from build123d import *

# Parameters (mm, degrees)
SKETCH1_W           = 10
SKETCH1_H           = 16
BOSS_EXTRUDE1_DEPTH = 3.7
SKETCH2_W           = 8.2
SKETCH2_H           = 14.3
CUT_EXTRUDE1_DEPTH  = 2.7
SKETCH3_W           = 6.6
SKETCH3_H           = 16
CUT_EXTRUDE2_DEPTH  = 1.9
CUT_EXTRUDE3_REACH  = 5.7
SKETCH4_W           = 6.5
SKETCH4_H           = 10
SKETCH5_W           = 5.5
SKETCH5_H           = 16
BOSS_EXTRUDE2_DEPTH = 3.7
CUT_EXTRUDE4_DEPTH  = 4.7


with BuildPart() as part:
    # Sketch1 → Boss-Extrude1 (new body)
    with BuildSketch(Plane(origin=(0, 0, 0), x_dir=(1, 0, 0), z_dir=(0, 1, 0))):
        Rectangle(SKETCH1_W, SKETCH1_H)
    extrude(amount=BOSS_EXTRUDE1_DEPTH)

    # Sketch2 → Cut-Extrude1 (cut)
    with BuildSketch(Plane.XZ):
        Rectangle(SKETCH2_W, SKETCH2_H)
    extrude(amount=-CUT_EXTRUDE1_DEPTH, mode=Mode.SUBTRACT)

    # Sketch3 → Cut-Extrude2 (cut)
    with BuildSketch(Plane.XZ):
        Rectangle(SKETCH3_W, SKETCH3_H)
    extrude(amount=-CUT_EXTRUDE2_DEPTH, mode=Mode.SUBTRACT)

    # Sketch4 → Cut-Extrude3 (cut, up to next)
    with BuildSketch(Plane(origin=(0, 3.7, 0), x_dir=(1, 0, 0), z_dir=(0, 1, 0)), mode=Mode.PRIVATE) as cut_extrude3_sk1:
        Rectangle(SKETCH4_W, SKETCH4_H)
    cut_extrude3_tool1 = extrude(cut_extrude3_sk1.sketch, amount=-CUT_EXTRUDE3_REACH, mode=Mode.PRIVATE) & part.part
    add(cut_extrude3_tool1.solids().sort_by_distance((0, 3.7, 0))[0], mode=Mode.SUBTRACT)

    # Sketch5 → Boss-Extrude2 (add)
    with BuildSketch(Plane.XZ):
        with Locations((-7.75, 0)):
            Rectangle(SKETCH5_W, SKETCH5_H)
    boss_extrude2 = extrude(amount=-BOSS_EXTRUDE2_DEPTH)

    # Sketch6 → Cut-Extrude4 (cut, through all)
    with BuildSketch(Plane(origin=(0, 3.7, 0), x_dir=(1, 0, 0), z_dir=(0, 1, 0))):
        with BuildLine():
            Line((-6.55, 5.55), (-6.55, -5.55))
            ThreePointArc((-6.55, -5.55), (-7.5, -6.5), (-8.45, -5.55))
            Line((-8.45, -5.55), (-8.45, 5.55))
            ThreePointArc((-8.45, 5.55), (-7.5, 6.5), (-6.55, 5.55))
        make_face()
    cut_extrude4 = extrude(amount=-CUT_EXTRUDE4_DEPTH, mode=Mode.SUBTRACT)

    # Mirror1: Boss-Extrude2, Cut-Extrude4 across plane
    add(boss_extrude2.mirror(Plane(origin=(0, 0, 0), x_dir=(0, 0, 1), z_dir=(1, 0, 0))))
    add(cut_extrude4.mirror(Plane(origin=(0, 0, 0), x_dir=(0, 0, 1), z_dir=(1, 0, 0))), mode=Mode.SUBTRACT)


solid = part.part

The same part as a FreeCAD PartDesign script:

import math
import FreeCAD as App
import Part
import Sketcher
from FreeCAD import Vector

doc = App.newDocument("Part")
body = doc.addObject("PartDesign::Body", "Body")

sketch1 = doc.addObject("Sketcher::SketchObject", "Sketch")
body.addObject(sketch1)
sketch1.AttachmentSupport = (doc.XZ_Plane, [""])
sketch1.MapMode = "FlatFace"
sketch1.addGeometry([
    Part.LineSegment(Vector(-5, -8, 0), Vector(-5, 8, 0)),
    Part.LineSegment(Vector(-5, 8, 0), Vector(5, 8, 0)),
    Part.LineSegment(Vector(5, 8, 0), Vector(5, -8, 0)),
    Part.LineSegment(Vector(5, -8, 0), Vector(-5, -8, 0)),
], False)
sketch1.addConstraint([
    Sketcher.Constraint("Coincident", 0, 2, 1, 1),
    Sketcher.Constraint("Coincident", 1, 2, 2, 1),
    Sketcher.Constraint("Coincident", 2, 2, 3, 1),
    Sketcher.Constraint("Coincident", 3, 2, 0, 1),
    Sketcher.Constraint("Vertical", 0),
    Sketcher.Constraint("Horizontal", 1),
    Sketcher.Constraint("Vertical", 2),
    Sketcher.Constraint("Horizontal", 3),
    Sketcher.Constraint("Symmetric", 0, 2, 2, 2, -1, 1),
    Sketcher.Constraint("DistanceX", 1, 1, 1, 2, 10.0),
    Sketcher.Constraint("DistanceY", 0, 1, 0, 2, 16.0),
])
pad1 = doc.addObject("PartDesign::Pad", "Pad")
body.addObject(pad1)
pad1.Profile = sketch1
pad1.Length = 3.7
pad1.Reversed = True

sketch2 = doc.addObject("Sketcher::SketchObject", "Sketch001")
body.addObject(sketch2)
sketch2.AttachmentSupport = (doc.XZ_Plane, [""])
sketch2.MapMode = "FlatFace"
sketch2.addGeometry([
    Part.LineSegment(Vector(-4.1, 7.15, 0), Vector(-4.1, -7.15, 0)),
    Part.LineSegment(Vector(-4.1, -7.15, 0), Vector(4.1, -7.15, 0)),
    Part.LineSegment(Vector(4.1, -7.15, 0), Vector(4.1, 7.15, 0)),
    Part.LineSegment(Vector(4.1, 7.15, 0), Vector(-4.1, 7.15, 0)),
], False)
sketch2.addConstraint([
    Sketcher.Constraint("Coincident", 0, 2, 1, 1),
    Sketcher.Constraint("Coincident", 1, 2, 2, 1),
    Sketcher.Constraint("Coincident", 2, 2, 3, 1),
    Sketcher.Constraint("Coincident", 3, 2, 0, 1),
    Sketcher.Constraint("Vertical", 0),
    Sketcher.Constraint("Horizontal", 1),
    Sketcher.Constraint("Vertical", 2),
    Sketcher.Constraint("Horizontal", 3),
    Sketcher.Constraint("Symmetric", 0, 2, 2, 2, -1, 1),
    Sketcher.Constraint("DistanceX", 1, 1, 1, 2, 8.2),
    Sketcher.Constraint("DistanceY", 0, 2, 0, 1, 14.3),
])
pocket1 = doc.addObject("PartDesign::Pocket", "Pocket")
body.addObject(pocket1)
pocket1.Profile = sketch2
pocket1.Length = 2.7

sketch3 = doc.addObject("Sketcher::SketchObject", "Sketch002")
body.addObject(sketch3)
sketch3.AttachmentSupport = (doc.XZ_Plane, [""])
sketch3.MapMode = "FlatFace"
sketch3.addGeometry([
    Part.LineSegment(Vector(-3.3, 8, 0), Vector(-3.3, -8, 0)),
    Part.LineSegment(Vector(-3.3, -8, 0), Vector(3.3, -8, 0)),
    Part.LineSegment(Vector(3.3, -8, 0), Vector(3.3, 8, 0)),
    Part.LineSegment(Vector(3.3, 8, 0), Vector(-3.3, 8, 0)),
], False)
sketch3.addConstraint([
    Sketcher.Constraint("Coincident", 0, 2, 1, 1),
    Sketcher.Constraint("Coincident", 1, 2, 2, 1),
    Sketcher.Constraint("Coincident", 2, 2, 3, 1),
    Sketcher.Constraint("Coincident", 3, 2, 0, 1),
    Sketcher.Constraint("Vertical", 0),
    Sketcher.Constraint("Horizontal", 1),
    Sketcher.Constraint("Vertical", 2),
    Sketcher.Constraint("Horizontal", 3),
    Sketcher.Constraint("Symmetric", 0, 2, 2, 2, -1, 1),
    Sketcher.Constraint("DistanceY", 0, 2, 0, 1, 16.0),
    Sketcher.Constraint("DistanceX", 1, 1, 1, 2, 6.6),
])
pocket2 = doc.addObject("PartDesign::Pocket", "Pocket001")
body.addObject(pocket2)
pocket2.Profile = sketch3
pocket2.Length = 1.9

sketch4 = doc.addObject("Sketcher::SketchObject", "Sketch003")
body.addObject(sketch4)
sketch4.AttachmentSupport = (doc.XZ_Plane, [""])
sketch4.MapMode = "FlatFace"
sketch4.AttachmentOffset = App.Placement(Vector(0, 0, -3.7), App.Rotation())
sketch4.addGeometry([
    Part.LineSegment(Vector(-3.25, -5, 0), Vector(-3.25, 5, 0)),
    Part.LineSegment(Vector(-3.25, 5, 0), Vector(3.25, 5, 0)),
    Part.LineSegment(Vector(3.25, 5, 0), Vector(3.25, -5, 0)),
    Part.LineSegment(Vector(3.25, -5, 0), Vector(-3.25, -5, 0)),
], False)
sketch4.addConstraint([
    Sketcher.Constraint("Coincident", 0, 2, 1, 1),
    Sketcher.Constraint("Coincident", 1, 2, 2, 1),
    Sketcher.Constraint("Coincident", 2, 2, 3, 1),
    Sketcher.Constraint("Coincident", 3, 2, 0, 1),
    Sketcher.Constraint("Vertical", 0),
    Sketcher.Constraint("Horizontal", 1),
    Sketcher.Constraint("Vertical", 2),
    Sketcher.Constraint("Horizontal", 3),
    Sketcher.Constraint("Symmetric", 0, 2, 2, 2, -1, 1),
    Sketcher.Constraint("DistanceY", 0, 1, 0, 2, 10.0),
    Sketcher.Constraint("DistanceX", 1, 1, 1, 2, 6.5),
])
pocket3 = doc.addObject("PartDesign::Pocket", "Pocket002")
body.addObject(pocket3)
pocket3.Profile = sketch4
pocket3.Type = "UpToFirst"
pocket3.Reversed = True

sketch5 = doc.addObject("Sketcher::SketchObject", "Sketch004")
body.addObject(sketch5)
sketch5.AttachmentSupport = (doc.XZ_Plane, [""])
sketch5.MapMode = "FlatFace"
sketch5.addGeometry([
    Part.LineSegment(Vector(-10.5, 8, 0), Vector(-10.5, -8, 0)),
    Part.LineSegment(Vector(-10.5, -8, 0), Vector(-5, -8, 0)),
    Part.LineSegment(Vector(-5, -8, 0), Vector(-5, 8, 0)),
    Part.LineSegment(Vector(-5, 8, 0), Vector(-10.5, 8, 0)),
], False)
sketch5.addConstraint([
    Sketcher.Constraint("Coincident", 0, 2, 1, 1),
    Sketcher.Constraint("Coincident", 1, 2, 2, 1),
    Sketcher.Constraint("Coincident", 2, 2, 3, 1),
    Sketcher.Constraint("Coincident", 3, 2, 0, 1),
    Sketcher.Constraint("Vertical", 0),
    Sketcher.Constraint("Horizontal", 1),
    Sketcher.Constraint("Vertical", 2),
    Sketcher.Constraint("Horizontal", 3),
    Sketcher.Constraint("DistanceY", 0, 2, 0, 1, 16.0),
    Sketcher.Constraint("DistanceX", 1, 1, 1, 2, 5.5),
    Sketcher.Constraint("DistanceY", 0, 2, -1, 1, 8.0),
    Sketcher.Constraint("DistanceX", 1, 2, -1, 1, 5.0),
])
pad2 = doc.addObject("PartDesign::Pad", "Pad001")
body.addObject(pad2)
pad2.Profile = sketch5
pad2.Length = 3.7
pad2.Reversed = True

sketch6 = doc.addObject("Sketcher::SketchObject", "Sketch005")
body.addObject(sketch6)
sketch6.AttachmentSupport = (doc.XZ_Plane, [""])
sketch6.MapMode = "FlatFace"
sketch6.AttachmentOffset = App.Placement(Vector(0, 0, -3.7), App.Rotation())
sketch6.addGeometry([
    Part.LineSegment(Vector(-6.55, 5.55, 0), Vector(-6.55, -5.55, 0)),
    Part.ArcOfCircle(Part.Circle(Vector(-7.5, -5.55, 0), Vector(0, 0, 1), 0.95), math.radians(180), math.radians(360)),
    Part.LineSegment(Vector(-8.45, -5.55, 0), Vector(-8.45, 5.55, 0)),
    Part.ArcOfCircle(Part.Circle(Vector(-7.5, 5.55, 0), Vector(0, 0, 1), 0.95), math.radians(0), math.radians(180)),
], False)
sketch6.addConstraint([
    Sketcher.Constraint("Tangent", 0, 2, 1, 2),
    Sketcher.Constraint("Tangent", 1, 1, 2, 1),
    Sketcher.Constraint("Tangent", 2, 2, 3, 2),
    Sketcher.Constraint("Tangent", 3, 1, 0, 1),
    Sketcher.Constraint("Vertical", 0),
    Sketcher.Constraint("Vertical", 2),
    Sketcher.Constraint("Radius", 1, 0.95),
    Sketcher.Constraint("DistanceY", 0, 2, 0, 1, 11.1),
    Sketcher.Constraint("DistanceX", 1, 3, -1, 1, 7.5),
    Sketcher.Constraint("DistanceY", 1, 3, -1, 1, 5.55),
])
pocket4 = doc.addObject("PartDesign::Pocket", "Pocket003")
body.addObject(pocket4)
pocket4.Profile = sketch6
pocket4.Type = "ThroughAll"
pocket4.Reversed = True
doc.recompute()

mirrored = doc.addObject("PartDesign::Mirrored", "Mirrored")
body.addObject(mirrored)
mirrored.Originals = [pad2, pocket4]
mirrored.MirrorPlane = (doc.YZ_Plane, [""])
body.Tip = mirrored

doc.recompute()
